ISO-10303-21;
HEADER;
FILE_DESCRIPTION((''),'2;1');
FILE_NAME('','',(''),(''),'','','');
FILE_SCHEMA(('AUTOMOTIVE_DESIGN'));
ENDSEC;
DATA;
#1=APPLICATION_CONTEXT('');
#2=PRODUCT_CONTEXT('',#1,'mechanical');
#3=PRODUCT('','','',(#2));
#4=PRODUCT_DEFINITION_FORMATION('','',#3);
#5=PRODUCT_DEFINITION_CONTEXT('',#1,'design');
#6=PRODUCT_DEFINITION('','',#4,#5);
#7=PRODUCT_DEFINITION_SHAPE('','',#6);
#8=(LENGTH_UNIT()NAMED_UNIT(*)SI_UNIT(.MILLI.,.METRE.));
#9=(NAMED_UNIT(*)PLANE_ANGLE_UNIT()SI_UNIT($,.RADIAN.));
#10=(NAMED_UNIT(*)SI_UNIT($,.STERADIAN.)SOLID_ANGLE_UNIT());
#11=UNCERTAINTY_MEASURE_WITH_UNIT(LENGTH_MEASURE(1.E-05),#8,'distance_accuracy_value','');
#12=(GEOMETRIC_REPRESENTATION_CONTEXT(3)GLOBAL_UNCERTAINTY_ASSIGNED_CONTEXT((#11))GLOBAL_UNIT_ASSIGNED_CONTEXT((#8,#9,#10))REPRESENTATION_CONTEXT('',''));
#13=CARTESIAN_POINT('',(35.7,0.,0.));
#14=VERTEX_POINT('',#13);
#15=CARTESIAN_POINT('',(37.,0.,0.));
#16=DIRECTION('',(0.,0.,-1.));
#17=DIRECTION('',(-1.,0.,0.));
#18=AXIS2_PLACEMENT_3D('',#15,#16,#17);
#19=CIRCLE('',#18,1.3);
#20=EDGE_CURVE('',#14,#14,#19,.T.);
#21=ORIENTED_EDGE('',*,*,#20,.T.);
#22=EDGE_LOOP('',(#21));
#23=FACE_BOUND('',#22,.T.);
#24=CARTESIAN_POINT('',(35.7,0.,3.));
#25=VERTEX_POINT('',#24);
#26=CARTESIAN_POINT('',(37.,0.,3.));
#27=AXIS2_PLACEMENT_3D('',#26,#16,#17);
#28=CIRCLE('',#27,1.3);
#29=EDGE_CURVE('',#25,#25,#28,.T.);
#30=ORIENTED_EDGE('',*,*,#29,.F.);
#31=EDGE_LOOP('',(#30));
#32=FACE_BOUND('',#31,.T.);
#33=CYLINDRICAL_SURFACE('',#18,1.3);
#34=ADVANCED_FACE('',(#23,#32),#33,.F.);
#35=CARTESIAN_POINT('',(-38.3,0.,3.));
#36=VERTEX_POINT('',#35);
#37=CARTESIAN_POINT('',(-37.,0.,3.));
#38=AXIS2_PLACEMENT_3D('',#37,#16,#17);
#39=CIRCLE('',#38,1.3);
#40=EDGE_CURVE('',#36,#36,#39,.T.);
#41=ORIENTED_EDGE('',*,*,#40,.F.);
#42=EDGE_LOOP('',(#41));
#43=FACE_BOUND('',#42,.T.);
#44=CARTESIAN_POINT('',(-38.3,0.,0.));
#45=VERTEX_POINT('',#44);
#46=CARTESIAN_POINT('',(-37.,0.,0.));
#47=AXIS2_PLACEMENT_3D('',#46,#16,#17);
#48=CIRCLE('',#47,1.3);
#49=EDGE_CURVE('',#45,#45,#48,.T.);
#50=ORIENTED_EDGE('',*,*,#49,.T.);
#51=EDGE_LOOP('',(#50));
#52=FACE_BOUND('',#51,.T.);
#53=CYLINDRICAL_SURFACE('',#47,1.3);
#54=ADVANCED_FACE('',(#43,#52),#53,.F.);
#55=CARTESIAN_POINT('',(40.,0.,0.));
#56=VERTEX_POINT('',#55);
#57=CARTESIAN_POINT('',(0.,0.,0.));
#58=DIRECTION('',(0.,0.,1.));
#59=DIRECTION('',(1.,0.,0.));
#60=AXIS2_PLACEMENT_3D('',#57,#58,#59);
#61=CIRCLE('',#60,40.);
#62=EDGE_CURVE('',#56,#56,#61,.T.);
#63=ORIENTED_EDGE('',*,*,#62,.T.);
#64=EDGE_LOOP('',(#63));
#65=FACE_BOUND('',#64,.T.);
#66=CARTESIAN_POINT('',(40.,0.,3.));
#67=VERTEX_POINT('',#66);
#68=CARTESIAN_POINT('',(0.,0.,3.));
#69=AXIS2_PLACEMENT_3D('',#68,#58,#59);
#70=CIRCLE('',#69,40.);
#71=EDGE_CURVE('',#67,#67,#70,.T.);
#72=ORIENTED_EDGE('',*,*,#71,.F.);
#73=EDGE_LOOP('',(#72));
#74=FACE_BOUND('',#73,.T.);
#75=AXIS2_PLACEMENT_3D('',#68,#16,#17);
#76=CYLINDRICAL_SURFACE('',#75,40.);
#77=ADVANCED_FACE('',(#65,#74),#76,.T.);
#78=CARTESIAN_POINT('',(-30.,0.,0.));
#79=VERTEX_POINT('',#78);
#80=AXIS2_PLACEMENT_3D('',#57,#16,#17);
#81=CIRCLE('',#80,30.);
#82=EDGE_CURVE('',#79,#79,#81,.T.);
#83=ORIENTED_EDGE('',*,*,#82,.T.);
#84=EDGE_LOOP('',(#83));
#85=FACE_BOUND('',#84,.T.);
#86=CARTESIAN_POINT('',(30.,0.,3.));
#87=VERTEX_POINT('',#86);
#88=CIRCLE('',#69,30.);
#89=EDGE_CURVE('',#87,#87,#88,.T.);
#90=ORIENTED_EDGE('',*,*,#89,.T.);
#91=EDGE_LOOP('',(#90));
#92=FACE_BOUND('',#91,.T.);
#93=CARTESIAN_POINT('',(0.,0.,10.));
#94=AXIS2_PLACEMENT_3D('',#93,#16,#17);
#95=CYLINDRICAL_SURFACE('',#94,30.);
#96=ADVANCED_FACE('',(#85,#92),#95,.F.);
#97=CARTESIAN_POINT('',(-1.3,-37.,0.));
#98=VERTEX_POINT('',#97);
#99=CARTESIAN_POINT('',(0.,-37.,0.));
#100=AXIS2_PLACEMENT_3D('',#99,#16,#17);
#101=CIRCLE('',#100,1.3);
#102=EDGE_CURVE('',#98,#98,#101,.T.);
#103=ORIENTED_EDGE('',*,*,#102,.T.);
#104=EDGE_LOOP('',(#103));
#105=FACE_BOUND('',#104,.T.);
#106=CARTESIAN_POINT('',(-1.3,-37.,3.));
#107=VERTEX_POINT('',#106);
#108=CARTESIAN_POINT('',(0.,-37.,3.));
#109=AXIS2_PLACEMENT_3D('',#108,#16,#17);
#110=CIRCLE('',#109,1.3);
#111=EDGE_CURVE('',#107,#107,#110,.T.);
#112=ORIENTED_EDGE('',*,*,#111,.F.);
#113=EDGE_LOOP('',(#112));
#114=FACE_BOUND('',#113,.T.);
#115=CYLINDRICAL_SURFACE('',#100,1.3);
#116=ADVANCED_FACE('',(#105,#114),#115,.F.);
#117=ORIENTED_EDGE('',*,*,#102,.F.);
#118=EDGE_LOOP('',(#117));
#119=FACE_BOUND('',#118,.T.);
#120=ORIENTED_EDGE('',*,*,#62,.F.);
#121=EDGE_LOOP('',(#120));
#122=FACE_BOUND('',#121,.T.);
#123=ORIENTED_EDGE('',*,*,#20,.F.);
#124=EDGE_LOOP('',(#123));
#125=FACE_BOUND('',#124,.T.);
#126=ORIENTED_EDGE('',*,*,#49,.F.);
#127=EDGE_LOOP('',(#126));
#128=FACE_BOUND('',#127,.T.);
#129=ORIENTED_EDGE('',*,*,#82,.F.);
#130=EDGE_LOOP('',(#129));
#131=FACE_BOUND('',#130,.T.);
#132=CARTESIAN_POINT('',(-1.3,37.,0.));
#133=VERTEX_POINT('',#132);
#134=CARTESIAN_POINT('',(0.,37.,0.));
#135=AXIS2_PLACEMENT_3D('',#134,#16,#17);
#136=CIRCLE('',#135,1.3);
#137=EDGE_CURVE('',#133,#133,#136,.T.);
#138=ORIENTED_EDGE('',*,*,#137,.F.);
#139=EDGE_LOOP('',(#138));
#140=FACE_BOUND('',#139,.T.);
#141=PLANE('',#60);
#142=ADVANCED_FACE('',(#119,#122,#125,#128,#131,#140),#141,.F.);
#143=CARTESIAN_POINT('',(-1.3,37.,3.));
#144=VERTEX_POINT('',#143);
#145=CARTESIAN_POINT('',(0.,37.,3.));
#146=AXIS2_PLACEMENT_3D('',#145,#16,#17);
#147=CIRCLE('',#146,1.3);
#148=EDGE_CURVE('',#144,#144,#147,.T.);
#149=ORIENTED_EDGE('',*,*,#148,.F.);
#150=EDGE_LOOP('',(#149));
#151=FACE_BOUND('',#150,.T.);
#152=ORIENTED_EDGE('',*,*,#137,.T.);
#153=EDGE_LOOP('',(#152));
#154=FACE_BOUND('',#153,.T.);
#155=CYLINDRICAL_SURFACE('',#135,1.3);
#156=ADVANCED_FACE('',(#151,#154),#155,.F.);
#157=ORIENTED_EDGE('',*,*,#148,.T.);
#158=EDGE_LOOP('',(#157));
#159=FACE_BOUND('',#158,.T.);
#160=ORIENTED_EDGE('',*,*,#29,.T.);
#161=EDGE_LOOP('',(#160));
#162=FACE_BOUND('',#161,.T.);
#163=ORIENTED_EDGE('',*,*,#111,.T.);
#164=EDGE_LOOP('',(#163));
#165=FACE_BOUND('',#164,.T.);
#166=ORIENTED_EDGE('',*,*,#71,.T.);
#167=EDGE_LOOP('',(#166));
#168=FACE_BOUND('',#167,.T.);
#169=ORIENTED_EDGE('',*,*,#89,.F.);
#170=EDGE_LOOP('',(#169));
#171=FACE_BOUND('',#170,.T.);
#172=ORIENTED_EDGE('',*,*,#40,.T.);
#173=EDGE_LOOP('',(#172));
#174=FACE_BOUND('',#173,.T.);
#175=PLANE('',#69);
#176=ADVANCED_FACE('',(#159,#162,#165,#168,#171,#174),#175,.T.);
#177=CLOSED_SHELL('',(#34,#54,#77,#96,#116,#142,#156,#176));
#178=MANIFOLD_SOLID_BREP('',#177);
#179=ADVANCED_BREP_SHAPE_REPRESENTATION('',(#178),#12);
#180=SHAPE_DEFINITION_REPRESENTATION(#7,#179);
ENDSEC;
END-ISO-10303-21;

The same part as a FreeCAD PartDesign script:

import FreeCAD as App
import Part
import Sketcher

V = App.Vector

doc = App.newDocument("Part")
body = doc.addObject("PartDesign::Body", "Body")

# Sketch on XY plane
sketch1 = body.newObject("Sketcher::SketchObject", "Sketch")
sketch1.AttachmentSupport = (doc.getObject("XY_Plane"), [""])
sketch1.MapMode = "FlatFace"
sketch1.addGeometry(Part.Circle(V(0, 0, 0), V(0, 0, 1), 40), False)
sketch1.addConstraint(Sketcher.Constraint("Coincident", 0, 3, -1, 1))
sketch1.addConstraint(Sketcher.Constraint("Diameter", 0, 80.0))
pad1 = body.newObject("PartDesign::Pad", "Pad")
pad1.Profile = sketch1
pad1.Length = 3

# Sketch on XY plane
sketch2 = body.newObject("Sketcher::SketchObject", "Sketch001")
sketch2.AttachmentSupport = (doc.getObject("XY_Plane"), [""])
sketch2.MapMode = "FlatFace"
sketch2.addGeometry(Part.Circle(V(0, 37, 0), V(0, 0, 1), 1.3), False)
sketch2.addConstraint(Sketcher.Constraint("PointOnObject", 0, 3, -2))
sketch2.addConstraint(Sketcher.Constraint("Diameter", 0, 2.6))
sketch2.addConstraint(Sketcher.Constraint("DistanceY", -1, 1, 0, 3, 37.0))
doc.recompute()
hole = body.newObject("PartDesign::Hole", "Hole")
hole.Profile = sketch2
hole.ThreadType = "None"
hole.Diameter = 2.6
hole.DepthType = "ThroughAll"
hole.Reversed = True
doc.recompute()

polarpattern = body.newObject("PartDesign::PolarPattern", "PolarPattern")
polarpattern.Originals = [hole]
polarpattern.Axis = (doc.getObject("Z_Axis"), [""])
polarpattern.Angle = 360
polarpattern.Occurrences = 4
body.Tip = polarpattern

# Sketch on XY plane
sketch3 = body.newObject("Sketcher::SketchObject", "Sketch002")
sketch3.AttachmentSupport = (doc.getObject("XY_Plane"), [""])
sketch3.MapMode = "FlatFace"
sketch3.addGeometry(Part.Circle(V(0, 0, 0), V(0, 0, 1), 30), False)
sketch3.addConstraint(Sketcher.Constraint("Coincident", 0, 3, -1, 1))
sketch3.addConstraint(Sketcher.Constraint("Diameter", 0, 60.0))
pocket1 = body.newObject("PartDesign::Pocket", "Pocket")
pocket1.Profile = sketch3
pocket1.Length = 10
pocket1.Reversed = True

doc.recompute()
